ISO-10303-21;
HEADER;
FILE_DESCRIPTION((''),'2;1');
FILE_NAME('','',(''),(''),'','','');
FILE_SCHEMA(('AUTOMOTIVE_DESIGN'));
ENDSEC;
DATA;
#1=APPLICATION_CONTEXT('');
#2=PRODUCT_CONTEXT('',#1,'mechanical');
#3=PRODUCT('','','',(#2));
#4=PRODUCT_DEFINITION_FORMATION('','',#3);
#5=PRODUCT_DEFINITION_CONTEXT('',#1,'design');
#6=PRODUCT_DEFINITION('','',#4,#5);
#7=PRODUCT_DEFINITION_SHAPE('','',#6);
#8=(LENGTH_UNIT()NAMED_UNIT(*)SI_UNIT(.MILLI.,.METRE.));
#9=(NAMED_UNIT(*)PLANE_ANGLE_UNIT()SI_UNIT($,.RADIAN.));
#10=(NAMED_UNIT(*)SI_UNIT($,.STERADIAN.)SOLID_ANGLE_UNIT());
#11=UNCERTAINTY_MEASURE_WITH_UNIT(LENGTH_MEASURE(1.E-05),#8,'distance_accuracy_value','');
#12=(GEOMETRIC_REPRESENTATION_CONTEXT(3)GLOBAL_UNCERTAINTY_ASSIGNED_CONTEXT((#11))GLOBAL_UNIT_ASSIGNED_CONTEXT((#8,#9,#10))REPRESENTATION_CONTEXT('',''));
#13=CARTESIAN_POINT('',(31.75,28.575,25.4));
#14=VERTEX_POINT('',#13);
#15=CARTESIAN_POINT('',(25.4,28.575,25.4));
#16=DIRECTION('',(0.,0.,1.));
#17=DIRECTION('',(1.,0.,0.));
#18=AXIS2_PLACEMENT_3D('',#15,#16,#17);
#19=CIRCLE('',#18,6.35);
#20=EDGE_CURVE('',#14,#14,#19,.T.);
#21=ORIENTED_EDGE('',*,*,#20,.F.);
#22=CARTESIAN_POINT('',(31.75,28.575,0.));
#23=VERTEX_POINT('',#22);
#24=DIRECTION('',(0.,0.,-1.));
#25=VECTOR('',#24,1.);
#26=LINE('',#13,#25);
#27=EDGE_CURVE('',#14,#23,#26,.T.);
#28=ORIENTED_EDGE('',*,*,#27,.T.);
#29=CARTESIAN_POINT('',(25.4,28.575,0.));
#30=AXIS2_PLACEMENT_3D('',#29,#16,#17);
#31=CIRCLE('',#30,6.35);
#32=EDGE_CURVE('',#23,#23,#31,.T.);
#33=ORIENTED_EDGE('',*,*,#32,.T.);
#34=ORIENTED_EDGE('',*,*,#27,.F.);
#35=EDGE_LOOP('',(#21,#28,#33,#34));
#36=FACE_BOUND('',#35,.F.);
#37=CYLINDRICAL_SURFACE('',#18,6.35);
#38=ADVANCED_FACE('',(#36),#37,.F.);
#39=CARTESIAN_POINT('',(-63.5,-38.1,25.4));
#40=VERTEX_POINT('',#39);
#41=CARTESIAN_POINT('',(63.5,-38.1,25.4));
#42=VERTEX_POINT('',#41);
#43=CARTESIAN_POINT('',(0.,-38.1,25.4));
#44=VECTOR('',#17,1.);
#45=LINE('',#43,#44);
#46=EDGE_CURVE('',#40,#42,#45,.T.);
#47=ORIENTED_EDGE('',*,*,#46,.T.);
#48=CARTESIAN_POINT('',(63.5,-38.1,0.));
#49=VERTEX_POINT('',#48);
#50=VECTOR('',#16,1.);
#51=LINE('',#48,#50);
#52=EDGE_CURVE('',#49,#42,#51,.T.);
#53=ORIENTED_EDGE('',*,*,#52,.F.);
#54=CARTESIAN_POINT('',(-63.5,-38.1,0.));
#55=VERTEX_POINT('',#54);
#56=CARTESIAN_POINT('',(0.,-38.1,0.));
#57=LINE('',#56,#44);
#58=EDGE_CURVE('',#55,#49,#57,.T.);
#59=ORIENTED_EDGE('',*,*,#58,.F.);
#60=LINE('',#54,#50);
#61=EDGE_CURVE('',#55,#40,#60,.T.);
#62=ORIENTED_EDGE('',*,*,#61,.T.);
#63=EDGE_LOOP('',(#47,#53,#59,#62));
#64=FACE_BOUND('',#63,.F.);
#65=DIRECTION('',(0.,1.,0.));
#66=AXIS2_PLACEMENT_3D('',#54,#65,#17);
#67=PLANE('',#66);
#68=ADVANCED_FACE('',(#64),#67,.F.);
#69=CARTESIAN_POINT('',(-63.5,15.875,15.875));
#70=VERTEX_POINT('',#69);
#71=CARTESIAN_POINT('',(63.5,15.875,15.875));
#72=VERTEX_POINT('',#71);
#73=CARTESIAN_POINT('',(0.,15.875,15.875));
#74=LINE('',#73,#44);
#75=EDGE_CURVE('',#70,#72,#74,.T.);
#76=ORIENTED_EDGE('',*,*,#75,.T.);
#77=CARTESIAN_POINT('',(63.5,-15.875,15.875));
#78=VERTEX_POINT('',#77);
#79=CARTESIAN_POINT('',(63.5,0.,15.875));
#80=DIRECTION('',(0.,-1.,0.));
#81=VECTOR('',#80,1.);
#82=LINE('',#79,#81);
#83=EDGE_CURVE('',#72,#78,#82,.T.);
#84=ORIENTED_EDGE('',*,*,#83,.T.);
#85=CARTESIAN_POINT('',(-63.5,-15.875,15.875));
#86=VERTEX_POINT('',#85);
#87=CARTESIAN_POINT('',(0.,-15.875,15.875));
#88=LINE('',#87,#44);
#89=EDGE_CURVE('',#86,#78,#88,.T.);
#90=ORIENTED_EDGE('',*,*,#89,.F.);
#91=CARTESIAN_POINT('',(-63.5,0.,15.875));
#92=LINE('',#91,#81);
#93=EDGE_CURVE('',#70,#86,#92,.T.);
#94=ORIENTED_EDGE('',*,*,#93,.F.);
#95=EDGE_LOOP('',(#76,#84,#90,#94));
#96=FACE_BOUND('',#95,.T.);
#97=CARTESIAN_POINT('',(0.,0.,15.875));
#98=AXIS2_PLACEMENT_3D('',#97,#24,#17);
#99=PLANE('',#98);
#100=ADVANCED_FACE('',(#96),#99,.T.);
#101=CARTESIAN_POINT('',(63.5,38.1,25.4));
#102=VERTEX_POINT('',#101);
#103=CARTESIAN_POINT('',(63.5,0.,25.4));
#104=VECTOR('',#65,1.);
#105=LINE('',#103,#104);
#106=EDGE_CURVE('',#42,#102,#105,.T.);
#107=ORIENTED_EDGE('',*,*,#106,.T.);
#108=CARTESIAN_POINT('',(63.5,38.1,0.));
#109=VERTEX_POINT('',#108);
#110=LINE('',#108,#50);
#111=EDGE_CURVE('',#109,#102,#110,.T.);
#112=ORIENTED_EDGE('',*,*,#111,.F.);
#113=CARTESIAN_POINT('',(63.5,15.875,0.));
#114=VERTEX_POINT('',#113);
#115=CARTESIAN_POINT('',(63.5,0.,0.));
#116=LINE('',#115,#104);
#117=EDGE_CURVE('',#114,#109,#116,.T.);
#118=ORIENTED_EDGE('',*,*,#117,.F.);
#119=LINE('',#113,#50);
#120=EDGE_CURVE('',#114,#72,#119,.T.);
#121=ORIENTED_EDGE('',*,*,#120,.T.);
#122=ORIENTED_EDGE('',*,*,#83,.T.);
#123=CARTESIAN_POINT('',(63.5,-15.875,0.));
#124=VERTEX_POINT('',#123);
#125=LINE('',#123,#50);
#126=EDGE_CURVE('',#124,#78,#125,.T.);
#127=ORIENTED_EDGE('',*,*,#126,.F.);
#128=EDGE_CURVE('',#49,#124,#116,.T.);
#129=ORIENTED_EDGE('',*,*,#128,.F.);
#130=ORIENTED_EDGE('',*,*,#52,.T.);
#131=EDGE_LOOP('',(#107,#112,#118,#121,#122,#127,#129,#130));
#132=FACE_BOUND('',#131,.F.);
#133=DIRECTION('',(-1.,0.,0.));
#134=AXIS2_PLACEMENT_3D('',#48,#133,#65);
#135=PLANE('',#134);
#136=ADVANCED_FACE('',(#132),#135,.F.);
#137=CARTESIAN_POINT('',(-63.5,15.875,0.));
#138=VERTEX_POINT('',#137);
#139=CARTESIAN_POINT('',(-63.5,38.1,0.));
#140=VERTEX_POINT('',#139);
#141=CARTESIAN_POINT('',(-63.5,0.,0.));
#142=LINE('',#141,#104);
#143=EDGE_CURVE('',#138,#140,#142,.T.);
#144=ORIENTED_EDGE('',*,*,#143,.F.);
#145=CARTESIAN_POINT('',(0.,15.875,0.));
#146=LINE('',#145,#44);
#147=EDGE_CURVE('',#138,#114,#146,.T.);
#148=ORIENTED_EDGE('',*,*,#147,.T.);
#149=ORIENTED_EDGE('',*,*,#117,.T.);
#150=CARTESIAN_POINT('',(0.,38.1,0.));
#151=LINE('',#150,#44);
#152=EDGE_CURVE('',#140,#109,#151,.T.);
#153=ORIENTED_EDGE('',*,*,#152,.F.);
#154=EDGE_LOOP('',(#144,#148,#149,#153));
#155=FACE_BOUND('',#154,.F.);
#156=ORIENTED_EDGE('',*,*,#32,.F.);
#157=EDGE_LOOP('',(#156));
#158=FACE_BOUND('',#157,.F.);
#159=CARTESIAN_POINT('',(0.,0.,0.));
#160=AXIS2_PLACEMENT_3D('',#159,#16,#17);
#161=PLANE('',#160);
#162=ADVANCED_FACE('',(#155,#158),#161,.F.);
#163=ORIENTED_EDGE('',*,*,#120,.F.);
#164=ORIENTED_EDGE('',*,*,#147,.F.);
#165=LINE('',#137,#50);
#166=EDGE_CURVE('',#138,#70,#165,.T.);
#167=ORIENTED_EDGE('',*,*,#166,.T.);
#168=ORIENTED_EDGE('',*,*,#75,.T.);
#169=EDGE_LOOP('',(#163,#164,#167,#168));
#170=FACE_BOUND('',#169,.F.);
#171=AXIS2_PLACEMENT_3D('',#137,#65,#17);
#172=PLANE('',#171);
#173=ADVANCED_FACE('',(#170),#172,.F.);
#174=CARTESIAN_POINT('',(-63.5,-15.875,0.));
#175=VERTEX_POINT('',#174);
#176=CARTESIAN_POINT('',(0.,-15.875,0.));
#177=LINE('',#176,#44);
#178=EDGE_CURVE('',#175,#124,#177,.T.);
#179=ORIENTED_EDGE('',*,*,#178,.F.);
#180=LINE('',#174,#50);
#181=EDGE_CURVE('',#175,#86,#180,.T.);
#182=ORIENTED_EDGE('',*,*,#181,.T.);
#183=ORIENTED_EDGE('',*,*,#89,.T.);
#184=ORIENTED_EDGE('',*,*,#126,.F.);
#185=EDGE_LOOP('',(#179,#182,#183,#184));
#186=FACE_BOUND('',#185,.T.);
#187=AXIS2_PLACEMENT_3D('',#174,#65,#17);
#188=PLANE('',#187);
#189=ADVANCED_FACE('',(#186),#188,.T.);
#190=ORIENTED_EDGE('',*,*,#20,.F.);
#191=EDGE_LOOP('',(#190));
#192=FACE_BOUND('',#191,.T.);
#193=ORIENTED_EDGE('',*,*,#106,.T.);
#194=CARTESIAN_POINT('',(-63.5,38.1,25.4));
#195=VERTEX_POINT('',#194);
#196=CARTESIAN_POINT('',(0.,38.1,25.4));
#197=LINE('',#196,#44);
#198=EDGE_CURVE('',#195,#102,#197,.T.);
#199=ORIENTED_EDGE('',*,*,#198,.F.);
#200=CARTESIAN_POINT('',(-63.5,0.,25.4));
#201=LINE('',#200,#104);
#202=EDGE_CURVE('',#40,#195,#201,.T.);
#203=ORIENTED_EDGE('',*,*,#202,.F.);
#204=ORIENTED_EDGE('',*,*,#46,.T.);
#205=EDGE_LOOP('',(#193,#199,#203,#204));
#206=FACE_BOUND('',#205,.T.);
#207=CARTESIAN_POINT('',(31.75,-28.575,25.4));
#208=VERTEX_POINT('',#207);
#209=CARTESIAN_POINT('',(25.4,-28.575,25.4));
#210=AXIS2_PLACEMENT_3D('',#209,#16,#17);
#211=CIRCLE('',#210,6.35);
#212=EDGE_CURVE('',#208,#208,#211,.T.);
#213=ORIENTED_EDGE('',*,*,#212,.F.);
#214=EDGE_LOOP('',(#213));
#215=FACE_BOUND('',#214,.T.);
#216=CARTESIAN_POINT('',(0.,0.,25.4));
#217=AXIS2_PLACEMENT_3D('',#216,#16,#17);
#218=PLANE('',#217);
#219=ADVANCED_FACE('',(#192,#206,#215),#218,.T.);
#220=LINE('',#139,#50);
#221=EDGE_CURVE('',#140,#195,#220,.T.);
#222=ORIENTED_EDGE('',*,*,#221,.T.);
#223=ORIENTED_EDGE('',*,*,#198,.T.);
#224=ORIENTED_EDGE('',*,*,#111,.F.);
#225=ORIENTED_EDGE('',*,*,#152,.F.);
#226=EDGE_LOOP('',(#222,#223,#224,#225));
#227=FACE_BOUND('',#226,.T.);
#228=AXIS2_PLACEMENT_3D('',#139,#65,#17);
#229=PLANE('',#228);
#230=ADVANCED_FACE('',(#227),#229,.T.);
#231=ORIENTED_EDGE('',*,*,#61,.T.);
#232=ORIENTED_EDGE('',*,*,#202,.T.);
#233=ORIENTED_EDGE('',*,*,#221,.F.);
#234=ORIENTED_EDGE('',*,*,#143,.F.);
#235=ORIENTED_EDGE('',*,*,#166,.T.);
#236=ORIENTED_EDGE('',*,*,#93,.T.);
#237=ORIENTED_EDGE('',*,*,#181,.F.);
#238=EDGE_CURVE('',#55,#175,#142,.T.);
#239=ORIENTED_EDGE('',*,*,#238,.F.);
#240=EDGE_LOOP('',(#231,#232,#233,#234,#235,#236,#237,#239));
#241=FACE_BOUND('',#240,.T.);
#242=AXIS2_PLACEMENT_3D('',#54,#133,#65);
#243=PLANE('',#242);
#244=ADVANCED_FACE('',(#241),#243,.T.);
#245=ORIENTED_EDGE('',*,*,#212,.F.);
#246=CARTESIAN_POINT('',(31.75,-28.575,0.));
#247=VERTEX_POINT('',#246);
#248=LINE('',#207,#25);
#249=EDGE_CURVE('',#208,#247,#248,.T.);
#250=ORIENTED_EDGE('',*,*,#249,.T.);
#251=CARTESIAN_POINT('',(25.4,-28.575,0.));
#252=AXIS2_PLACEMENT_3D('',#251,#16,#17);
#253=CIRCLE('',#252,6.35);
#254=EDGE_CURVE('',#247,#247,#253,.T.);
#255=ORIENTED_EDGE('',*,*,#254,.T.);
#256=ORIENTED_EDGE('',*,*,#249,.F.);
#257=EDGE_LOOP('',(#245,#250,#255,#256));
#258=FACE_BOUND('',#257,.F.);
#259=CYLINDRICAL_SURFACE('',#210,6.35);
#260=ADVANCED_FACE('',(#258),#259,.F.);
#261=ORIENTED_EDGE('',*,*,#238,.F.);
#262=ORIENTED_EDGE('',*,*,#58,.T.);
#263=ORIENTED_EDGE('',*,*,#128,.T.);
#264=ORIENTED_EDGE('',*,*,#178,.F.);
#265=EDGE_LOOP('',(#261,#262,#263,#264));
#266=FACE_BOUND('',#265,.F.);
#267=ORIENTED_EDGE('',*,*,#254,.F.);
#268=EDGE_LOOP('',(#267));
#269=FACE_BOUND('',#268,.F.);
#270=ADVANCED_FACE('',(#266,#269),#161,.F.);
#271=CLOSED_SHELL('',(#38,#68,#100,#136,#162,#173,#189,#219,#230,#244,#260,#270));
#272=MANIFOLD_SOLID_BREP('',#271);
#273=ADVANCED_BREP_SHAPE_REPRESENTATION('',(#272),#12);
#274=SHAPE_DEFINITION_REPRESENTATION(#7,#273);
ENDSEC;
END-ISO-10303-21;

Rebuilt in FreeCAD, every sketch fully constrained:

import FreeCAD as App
import Part
import Sketcher

V = App.Vector
Q = App.Units.Quantity


def add_polygon(sketch, points):
    """Adds a closed chain of lines whose ends are joined by coincident constraints."""
    first, n = sketch.GeometryCount, len(points)
    for a, b in zip(points, points[1:] + points[:1]):
        sketch.addGeometry(Part.LineSegment(App.Vector(*a, 0), App.Vector(*b, 0)), False)
    for i in range(n):
        sketch.addConstraint(Sketcher.Constraint("Coincident", first + i, 2, first + (i + 1) % n, 1))

doc = App.newDocument("Part")
params = doc.addObject("Spreadsheet::Sheet", "Params")
for row, (alias, value) in enumerate([
    ("sketch1_width", "5 in"),
    ("sketch1_height", "3 in"),
    ("pad1_length", "1 in"),
    ("sketch2_width", "5 in"),
    ("sketch2_height", "1.25 in"),
    ("pocket1_length", "0.625 in"),
    ("sketch3_diameter", "0.5 in"),
], start=1):
    params.set(f"A{row}", alias)
    params.set(f"B{row}", "=" + value)
    params.setAlias(f"B{row}", alias)

body = doc.addObject("PartDesign::Body", "Body")

# Sketch on XY plane
sketch1 = body.newObject("Sketcher::SketchObject", "Sketch")
sketch1.AttachmentSupport = (doc.getObject("XY_Plane"), [""])
sketch1.MapMode = "FlatFace"
add_polygon(sketch1, [(-64, 38), (-64, -38), (64, -38), (64, 38)])  # lines 0-3
sketch1.addConstraint([
    Sketcher.Constraint("Vertical", 0),
    Sketcher.Constraint("Horizontal", 1),
    Sketcher.Constraint("Vertical", 2),
    Sketcher.Constraint("Horizontal", 3),
    Sketcher.Constraint("Symmetric", 0, 2, 2, 2, -1, 1),
    Sketcher.Constraint("DistanceX", 1, 1, 1, 2, Q("5 in")),
    Sketcher.Constraint("DistanceY", 0, 2, 0, 1, Q("3 in")),
])
sketch1.setExpression("Constraints[9]", "Params.sketch1_width")
sketch1.setExpression("Constraints[10]", "Params.sketch1_height")
pad1 = body.newObject("PartDesign::Pad", "Pad")
pad1.Profile = sketch1
pad1.setExpression("Length", "Params.pad1_length")

# Sketch on XY plane
sketch2 = body.newObject("Sketcher::SketchObject", "Sketch001")
sketch2.AttachmentSupport = (doc.getObject("XY_Plane"), [""])
sketch2.MapMode = "FlatFace"
add_polygon(sketch2, [(-64, -16), (-64, 16), (64, 16), (64, -16)])  # lines 0-3
sketch2.addConstraint([
    Sketcher.Constraint("Vertical", 0),
    Sketcher.Constraint("Horizontal", 1),
    Sketcher.Constraint("Vertical", 2),
    Sketcher.Constraint("Horizontal", 3),
    Sketcher.Constraint("Symmetric", 0, 2, 2, 2, -1, 1),
    Sketcher.Constraint("DistanceX", 1, 1, 1, 2, Q("5 in")),
    Sketcher.Constraint("DistanceY", 0, 1, 0, 2, Q("1.25 in")),
])
sketch2.setExpression("Constraints[9]", "Params.sketch2_width")
sketch2.setExpression("Constraints[10]", "Params.sketch2_height")
pocket1 = body.newObject("PartDesign::Pocket", "Pocket")
pocket1.Profile = sketch2
pocket1.setExpression("Length", "Params.pocket1_length")
pocket1.Reversed = True

# Sketch on XY plane
sketch3 = body.newObject("Sketcher::SketchObject", "Sketch002")
sketch3.AttachmentSupport = (doc.getObject("XY_Plane"), [""])
sketch3.MapMode = "FlatFace"
sketch3.AttachmentOffset = App.Placement(V(0, 0, 1 * 25.4), App.Rotation())
sketch3.addGeometry([
    Part.Circle(V(25, 29, 0), V(0, 0, 1), 6),
    Part.Circle(V(25, -29, 0), V(0, 0, 1), 6),
], False)
sketch3.addConstraint([
    Sketcher.Constraint("Equal", 0, 1),
    Sketcher.Constraint("Symmetric", 0, 3, 1, 3, -1),
    Sketcher.Constraint("Diameter", 0, Q("0.5 in")),
    Sketcher.Constraint("DistanceX", -1, 1, 0, 3, Q("1 in")),
    Sketcher.Constraint("DistanceY", 1, 3, 0, 3, Q("2.25 in")),
])
sketch3.setExpression("Constraints[2]", "Params.sketch3_diameter")
pocket2 = body.newObject("PartDesign::Pocket", "Pocket001")
pocket2.Profile = sketch3
pocket2.Type = "ThroughAll"

doc.recompute()
